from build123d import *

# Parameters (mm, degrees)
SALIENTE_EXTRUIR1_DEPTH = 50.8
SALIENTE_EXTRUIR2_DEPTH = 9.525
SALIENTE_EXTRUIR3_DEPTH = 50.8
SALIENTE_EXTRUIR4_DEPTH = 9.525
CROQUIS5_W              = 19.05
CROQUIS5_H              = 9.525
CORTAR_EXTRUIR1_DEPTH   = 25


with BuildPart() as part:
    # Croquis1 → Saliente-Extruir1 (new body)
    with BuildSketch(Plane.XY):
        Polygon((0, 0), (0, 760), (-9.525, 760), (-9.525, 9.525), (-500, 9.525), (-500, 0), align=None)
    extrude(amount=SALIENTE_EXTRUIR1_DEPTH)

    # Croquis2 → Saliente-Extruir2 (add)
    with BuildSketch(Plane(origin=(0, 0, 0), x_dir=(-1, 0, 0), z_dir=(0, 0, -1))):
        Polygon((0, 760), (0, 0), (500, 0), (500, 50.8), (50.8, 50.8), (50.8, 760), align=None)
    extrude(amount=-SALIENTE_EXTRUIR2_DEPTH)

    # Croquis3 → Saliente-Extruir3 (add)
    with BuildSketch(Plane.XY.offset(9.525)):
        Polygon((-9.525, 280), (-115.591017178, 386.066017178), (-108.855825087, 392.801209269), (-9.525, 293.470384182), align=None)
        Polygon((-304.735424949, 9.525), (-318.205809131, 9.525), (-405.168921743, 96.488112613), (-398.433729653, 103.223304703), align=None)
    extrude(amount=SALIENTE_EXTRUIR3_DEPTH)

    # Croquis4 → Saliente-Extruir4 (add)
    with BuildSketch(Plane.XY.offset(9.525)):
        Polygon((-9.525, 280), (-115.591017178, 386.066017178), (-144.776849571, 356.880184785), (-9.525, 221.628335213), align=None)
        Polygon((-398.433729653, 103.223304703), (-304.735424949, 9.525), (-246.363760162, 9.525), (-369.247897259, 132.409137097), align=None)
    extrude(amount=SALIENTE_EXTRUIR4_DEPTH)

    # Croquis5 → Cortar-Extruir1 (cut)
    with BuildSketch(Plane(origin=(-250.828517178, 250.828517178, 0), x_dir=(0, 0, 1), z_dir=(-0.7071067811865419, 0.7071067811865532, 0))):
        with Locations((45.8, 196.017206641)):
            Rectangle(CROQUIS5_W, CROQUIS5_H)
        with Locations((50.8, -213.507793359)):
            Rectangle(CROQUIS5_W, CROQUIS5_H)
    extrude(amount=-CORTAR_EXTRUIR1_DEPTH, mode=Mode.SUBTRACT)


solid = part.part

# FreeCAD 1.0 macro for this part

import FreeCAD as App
import Part
import Sketcher

V = App.Vector


def add_polygon(sketch, points):
    """Adds a closed chain of lines whose ends are joined by coincident constraints."""
    first, n = sketch.GeometryCount, len(points)
    for a, b in zip(points, points[1:] + points[:1]):
        sketch.addGeometry(Part.LineSegment(App.Vector(*a, 0), App.Vector(*b, 0)), False)
    for i in range(n):
        sketch.addConstraint(Sketcher.Constraint("Coincident", first + i, 2, first + (i + 1) % n, 1))

doc = App.newDocument("Part")
body = doc.addObject("PartDesign::Body", "Body")

# Sketch on XY plane
sketch1 = body.newObject("Sketcher::SketchObject", "Sketch")
sketch1.AttachmentSupport = (doc.getObject("XY_Plane"), [""])
sketch1.MapMode = "FlatFace"
add_polygon(sketch1, [(0, 0), (0, 760), (-9.525, 760), (-9.525, 9.525), (-500, 9.525), (-500, 0)])  # lines 0-5
sketch1.addConstraint([
    Sketcher.Constraint("Vertical", 0),
    Sketcher.Constraint("Horizontal", 1),
    Sketcher.Constraint("Vertical", 2),
    Sketcher.Constraint("Horizontal", 3),
    Sketcher.Constraint("Vertical", 4),
    Sketcher.Constraint("Horizontal", 5),
    Sketcher.Constraint("Coincident", 5, 2, -1, 1),
    Sketcher.Constraint("Equal", 1, 4),
    Sketcher.Constraint("DistanceX", 5, 1, 5, 2, 500.0),
    Sketcher.Constraint("DistanceY", 0, 1, 0, 2, 760.0),
    Sketcher.Constraint("DistanceX", 1, 2, 1, 1, 9.525),
])
pad1 = body.newObject("PartDesign::Pad", "Pad")
pad1.Profile = sketch1
pad1.Length = 50.8

# Sketch on XY plane
sketch2 = body.newObject("Sketcher::SketchObject", "Sketch001")
sketch2.AttachmentSupport = (doc.getObject("XY_Plane"), [""])
sketch2.MapMode = "FlatFace"
add_polygon(sketch2, [(0, 760), (0, 0), (-500, 0), (-500, 50.8), (-50.8, 50.8), (-50.8, 760)])  # lines 0-5
sketch2.addConstraint([
    Sketcher.Constraint("Vertical", 0),
    Sketcher.Constraint("Horizontal", 1),
    Sketcher.Constraint("Vertical", 2),
    Sketcher.Constraint("Horizontal", 3),
    Sketcher.Constraint("Vertical", 4),
    Sketcher.Constraint("Horizontal", 5),
    Sketcher.Constraint("Coincident", 0, 2, -1, 1),
    Sketcher.Constraint("Equal", 5, 2),
    Sketcher.Constraint("DistanceX", 1, 2, 1, 1, 500.0),
    Sketcher.Constraint("DistanceY", 0, 2, 0, 1, 760.0),
    Sketcher.Constraint("DistanceX", 3, 1, 3, 2, 449.2),
])
pad2 = body.newObject("PartDesign::Pad", "Pad001")
pad2.Profile = sketch2
pad2.Length = 9.525

# Sketch on XY plane
sketch3 = body.newObject("Sketcher::SketchObject", "Sketch002")
sketch3.AttachmentSupport = (doc.getObject("XY_Plane"), [""])
sketch3.MapMode = "FlatFace"
sketch3.AttachmentOffset = App.Placement(V(0, 0, 9.525), App.Rotation())
add_polygon(sketch3, [(-115.591017, 386.066017), (-9.525, 280), (-9.525, 293.470384), (-108.855825, 392.801209)])  # lines 0-3
add_polygon(sketch3, [(-318.205809, 9.525), (-304.735425, 9.525), (-398.43373, 103.223305), (-405.168922, 96.488113)])  # lines 4-7
sketch3.addConstraint([
    Sketcher.Constraint("Vertical", 1),
    Sketcher.Constraint("Horizontal", 4),
    Sketcher.Constraint("Parallel", 0, 2),
    Sketcher.Constraint("Perpendicular", 2, 3),
    Sketcher.Constraint("Perpendicular", 3, 5),
    Sketcher.Constraint("Perpendicular", 5, 6),
    Sketcher.Constraint("Perpendicular", 6, 7),
    Sketcher.Constraint("Equal", 4, 1),
    Sketcher.Constraint("Equal", 3, 6),
    Sketcher.Constraint("Distance", 0, 150.0),
    Sketcher.Constraint("DistanceY", -1, 1, 0, 2, 280.0),
    Sketcher.Constraint("Distance", 2, 140.475),
    Sketcher.Constraint("DistanceX", 0, 2, -1, 1, 9.525),
    Sketcher.Constraint("DistanceY", -1, 1, 4, 2, 9.525),
    Sketcher.Constraint("DistanceX", 4, 2, 2, 2, 195.8796),
    Sketcher.Constraint("DistanceX", 5, 2, -1, 1, 398.43373),
])
pad3 = body.newObject("PartDesign::Pad", "Pad002")
pad3.Profile = sketch3
pad3.Length = 50.8

# Sketch on XY plane
sketch4 = body.newObject("Sketcher::SketchObject", "Sketch003")
sketch4.AttachmentSupport = (doc.getObject("XY_Plane"), [""])
sketch4.MapMode = "FlatFace"
sketch4.AttachmentOffset = App.Placement(V(0, 0, 9.525), App.Rotation())
add_polygon(sketch4, [(-9.525, 280), (-115.591017, 386.066017), (-144.77685, 356.880185), (-9.525, 221.628335)])  # lines 0-3
add_polygon(sketch4, [(-398.43373, 103.223305), (-304.735425, 9.525), (-246.36376, 9.525), (-369.247897, 132.409137)])  # lines 4-7
sketch4.addConstraint([
    Sketcher.Constraint("Vertical", 3),
    Sketcher.Constraint("Horizontal", 5),
    Sketcher.Constraint("Perpendicular", 0, 1),
    Sketcher.Constraint("Perpendicular", 1, 2),
    Sketcher.Constraint("Parallel", 2, 4),
    Sketcher.Constraint("Parallel", 4, 6),
    Sketcher.Constraint("Perpendicular", 6, 7),
    Sketcher.Constraint("Equal", 5, 3),
    Sketcher.Constraint("Equal", 1, 7),
    Sketcher.Constraint("Distance", 0, 150.0),
    Sketcher.Constraint("DistanceY", -1, 1, 3, 2, 280.0),
    Sketcher.Constraint("Distance", 1, 41.275),
    Sketcher.Constraint("DistanceX", 2, 2, -1, 1, 9.525),
    Sketcher.Constraint("DistanceY", -1, 1, 4, 2, 9.525),
    Sketcher.Constraint("DistanceY", 6, 2, 2, 2, 89.219198),
    Sketcher.Constraint("DistanceX", 5, 2, -1, 1, 246.36376),
])
pad4 = body.newObject("PartDesign::Pad", "Pad003")
pad4.Profile = sketch4
pad4.Length = 9.525

# Sketch on an angled plane
sketch5 = body.newObject("Sketcher::SketchObject", "Sketch004")
sketch5.Placement = App.Placement(V(-250.828517, 250.828517, 0), App.Rotation(V(0, 0, 1), V(0.707106781, 0.707106781, 0), V(-0.707106781, 0.707106781, 0), "ZXY"))
add_polygon(sketch5, [(36.275, 200.779707), (36.275, 191.254707), (55.325, 191.254707), (55.325, 200.779707)])  # lines 0-3
add_polygon(sketch5, [(41.275, -208.745293), (41.275, -218.270293), (60.325, -218.270293), (60.325, -208.745293)])  # lines 4-7
sketch5.addConstraint([
    Sketcher.Constraint("Vertical", 0),
    Sketcher.Constraint("Horizontal", 1),
    Sketcher.Constraint("Vertical", 2),
    Sketcher.Constraint("Horizontal", 3),
    Sketcher.Constraint("Vertical", 4),
    Sketcher.Constraint("Horizontal", 5),
    Sketcher.Constraint("Vertical", 6),
    Sketcher.Constraint("Horizontal", 7),
    Sketcher.Constraint("Equal", 3, 5),
    Sketcher.Constraint("Equal", 2, 4),
    Sketcher.Constraint("DistanceX", 0, 2, 4, 2, 5.0),
    Sketcher.Constraint("DistanceY", 6, 2, 1, 2, 400.0),
    Sketcher.Constraint("DistanceX", 1, 1, 1, 2, 19.05),
    Sketcher.Constraint("DistanceY", 0, 2, 0, 1, 9.525),
    Sketcher.Constraint("DistanceX", -1, 1, 0, 2, 36.275),
    Sketcher.Constraint("DistanceY", -1, 1, 0, 2, 191.254707),
])
pocket1 = body.newObject("PartDesign::Pocket", "Pocket")
pocket1.Profile = sketch5
pocket1.Length = 25

doc.recompute()
